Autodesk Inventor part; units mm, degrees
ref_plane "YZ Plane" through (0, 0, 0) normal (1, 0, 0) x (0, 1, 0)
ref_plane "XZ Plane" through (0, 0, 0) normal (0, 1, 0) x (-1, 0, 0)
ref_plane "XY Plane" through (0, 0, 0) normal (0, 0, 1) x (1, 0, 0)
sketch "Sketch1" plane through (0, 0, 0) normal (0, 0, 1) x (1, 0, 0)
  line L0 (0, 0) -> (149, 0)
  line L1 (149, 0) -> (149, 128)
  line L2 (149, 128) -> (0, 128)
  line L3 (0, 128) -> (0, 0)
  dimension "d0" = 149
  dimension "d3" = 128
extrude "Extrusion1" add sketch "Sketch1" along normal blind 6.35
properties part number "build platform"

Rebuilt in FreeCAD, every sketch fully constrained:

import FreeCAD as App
import Part
import Sketcher
from FreeCAD import Vector
Q = App.Units.Quantity


def add_polygon(sketch, points):
    """Adds a closed chain of lines whose ends are joined by coincident constraints."""
    first, n = sketch.GeometryCount, len(points)
    for a, b in zip(points, points[1:] + points[:1]):
        sketch.addGeometry(Part.LineSegment(App.Vector(*a, 0), App.Vector(*b, 0)), False)
    for i in range(n):
        sketch.addConstraint(Sketcher.Constraint("Coincident", first + i, 2, first + (i + 1) % n, 1))

doc = App.newDocument("Part")
body = doc.addObject("PartDesign::Body", "Body")

sketch1 = body.newObject("Sketcher::SketchObject", "Sketch")
sketch1.AttachmentSupport = (doc.getObject("XY_Plane"), [""])
sketch1.MapMode = "FlatFace"
add_polygon(sketch1, [(0, 128), (0, 0), (149, 0), (149, 128)])
sketch1.addConstraint([
    Sketcher.Constraint("Vertical", 0),
    Sketcher.Constraint("Horizontal", 1),
    Sketcher.Constraint("Vertical", 2),
    Sketcher.Constraint("Horizontal", 3),
    Sketcher.Constraint("Coincident", 0, 2, -1, 1),
    Sketcher.Constraint("DistanceX", 1, 1, 1, 2, Q("149 mm")),
    Sketcher.Constraint("DistanceY", 0, 2, 0, 1, Q("128 mm")),
])
pad1 = body.newObject("PartDesign::Pad", "Pad")
pad1.Profile = sketch1
pad1.Length = 6.35

doc.recompute()
